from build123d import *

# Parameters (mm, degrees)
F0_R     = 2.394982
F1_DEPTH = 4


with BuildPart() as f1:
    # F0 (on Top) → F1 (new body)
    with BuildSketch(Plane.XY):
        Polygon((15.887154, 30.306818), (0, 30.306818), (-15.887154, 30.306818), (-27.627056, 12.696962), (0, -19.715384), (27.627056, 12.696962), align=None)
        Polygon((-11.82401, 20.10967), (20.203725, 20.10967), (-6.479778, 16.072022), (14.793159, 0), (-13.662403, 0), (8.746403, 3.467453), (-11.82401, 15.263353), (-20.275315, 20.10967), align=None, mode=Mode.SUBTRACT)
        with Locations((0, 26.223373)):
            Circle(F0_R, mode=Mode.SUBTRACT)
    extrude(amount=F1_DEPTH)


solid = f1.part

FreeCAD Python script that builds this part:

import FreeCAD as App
import Part
import Sketcher

V = App.Vector

doc = App.newDocument("Part")
body = doc.addObject("PartDesign::Body", "Body")

sketch1 = doc.addObject("Sketcher::SketchObject", "Sketch")
body.addObject(sketch1)
sketch1.AttachmentSupport = (doc.XY_Plane, [""])
sketch1.MapMode = "FlatFace"
sketch1.addGeometry([
    Part.LineSegment(V(15.9, 30.3, 0), V(-15.9, 30.3, 0)),
    Part.LineSegment(V(-15.9, 30.3, 0), V(-27.6, 12.7, 0)),
    Part.LineSegment(V(-27.6, 12.7, 0), V(0, -19.7, 0)),
    Part.LineSegment(V(0, -19.7, 0), V(27.6, 12.7, 0)),
    Part.LineSegment(V(27.6, 12.7, 0), V(15.9, 30.3, 0)),
    Part.LineSegment(V(-20.3, 20.1, 0), V(20.2, 20.1, 0)),
    Part.LineSegment(V(20.2, 20.1, 0), V(-6.5, 16.1, 0)),
    Part.LineSegment(V(-6.5, 16.1, 0), V(14.8, 0, 0)),
    Part.LineSegment(V(14.8, 0, 0), V(-13.7, 0, 0)),
    Part.LineSegment(V(-13.7, 0, 0), V(8.7, 3.5, 0)),
    Part.LineSegment(V(8.7, 3.5, 0), V(-11.8, 15.3, 0)),
    Part.LineSegment(V(-11.8, 15.3, 0), V(-20.3, 20.1, 0)),
    Part.Circle(V(0, 26.2, 0), V(0, 0, 1), 2.4),
], False)
sketch1.addConstraint([
    Sketcher.Constraint("Coincident", 0, 2, 1, 1),
    Sketcher.Constraint("Coincident", 1, 2, 2, 1),
    Sketcher.Constraint("Coincident", 2, 2, 3, 1),
    Sketcher.Constraint("Coincident", 3, 2, 4, 1),
    Sketcher.Constraint("Coincident", 4, 2, 0, 1),
    Sketcher.Constraint("Coincident", 5, 2, 6, 1),
    Sketcher.Constraint("Coincident", 6, 2, 7, 1),
    Sketcher.Constraint("Coincident", 7, 2, 8, 1),
    Sketcher.Constraint("Coincident", 8, 2, 9, 1),
    Sketcher.Constraint("Coincident", 9, 2, 10, 1),
    Sketcher.Constraint("Coincident", 10, 2, 11, 1),
    Sketcher.Constraint("Coincident", 11, 2, 5, 1),
    Sketcher.Constraint("Horizontal", 0),
    Sketcher.Constraint("Horizontal", 5),
    Sketcher.Constraint("Horizontal", 8),
    Sketcher.Constraint("Symmetric", 1, 2, 3, 2, -2),
    Sketcher.Constraint("PointOnObject", 12, 3, -2),
    Sketcher.Constraint("PointOnObject", 2, 2, -2),
    Sketcher.Constraint("PointOnObject", 7, 2, -1),
    Sketcher.Constraint("Parallel", 10, 11),
    Sketcher.Constraint("Equal", 1, 4),
    Sketcher.Constraint("Diameter", 12, 4.789964),
    Sketcher.Constraint("Distance", 2, 42.5889),
    Sketcher.Constraint("DistanceX", 0, 2, 0, 1, 31.774308),
    Sketcher.Constraint("DistanceX", 5, 1, 5, 2, 40.47904),
    Sketcher.Constraint("DistanceX", 1, 2, 0, 2, 11.739902),
    Sketcher.Constraint("Distance", 1, 21.164412),
    Sketcher.Constraint("Distance", 9, 22.675489),
    Sketcher.Constraint("DistanceX", 8, 2, 8, 1, 28.455562),
    Sketcher.Constraint("DistanceY", -1, 1, 0, 2, 30.306818),
    Sketcher.Constraint("DistanceY", -1, 1, 5, 2, 20.10967),
    Sketcher.Constraint("DistanceX", -1, 1, 7, 2, 14.793159),
    Sketcher.Constraint("DistanceX", 10, 2, -1, 1, 11.82401),
    Sketcher.Constraint("DistanceY", 1, 2, 12, 3, 13.526411),
    Sketcher.Constraint("DistanceX", 5, 2, 3, 2, 7.423331),
    Sketcher.Constraint("DistanceY", 6, 2, 12, 3, 10.151351),
    Sketcher.Constraint("DistanceX", 1, 2, 6, 2, 21.147278),
    Sketcher.Constraint("DistanceX", 6, 2, 9, 2, 15.226181),
])
pad1 = doc.addObject("PartDesign::Pad", "Pad")
body.addObject(pad1)
pad1.Profile = sketch1
pad1.Length = 4

doc.recompute()
